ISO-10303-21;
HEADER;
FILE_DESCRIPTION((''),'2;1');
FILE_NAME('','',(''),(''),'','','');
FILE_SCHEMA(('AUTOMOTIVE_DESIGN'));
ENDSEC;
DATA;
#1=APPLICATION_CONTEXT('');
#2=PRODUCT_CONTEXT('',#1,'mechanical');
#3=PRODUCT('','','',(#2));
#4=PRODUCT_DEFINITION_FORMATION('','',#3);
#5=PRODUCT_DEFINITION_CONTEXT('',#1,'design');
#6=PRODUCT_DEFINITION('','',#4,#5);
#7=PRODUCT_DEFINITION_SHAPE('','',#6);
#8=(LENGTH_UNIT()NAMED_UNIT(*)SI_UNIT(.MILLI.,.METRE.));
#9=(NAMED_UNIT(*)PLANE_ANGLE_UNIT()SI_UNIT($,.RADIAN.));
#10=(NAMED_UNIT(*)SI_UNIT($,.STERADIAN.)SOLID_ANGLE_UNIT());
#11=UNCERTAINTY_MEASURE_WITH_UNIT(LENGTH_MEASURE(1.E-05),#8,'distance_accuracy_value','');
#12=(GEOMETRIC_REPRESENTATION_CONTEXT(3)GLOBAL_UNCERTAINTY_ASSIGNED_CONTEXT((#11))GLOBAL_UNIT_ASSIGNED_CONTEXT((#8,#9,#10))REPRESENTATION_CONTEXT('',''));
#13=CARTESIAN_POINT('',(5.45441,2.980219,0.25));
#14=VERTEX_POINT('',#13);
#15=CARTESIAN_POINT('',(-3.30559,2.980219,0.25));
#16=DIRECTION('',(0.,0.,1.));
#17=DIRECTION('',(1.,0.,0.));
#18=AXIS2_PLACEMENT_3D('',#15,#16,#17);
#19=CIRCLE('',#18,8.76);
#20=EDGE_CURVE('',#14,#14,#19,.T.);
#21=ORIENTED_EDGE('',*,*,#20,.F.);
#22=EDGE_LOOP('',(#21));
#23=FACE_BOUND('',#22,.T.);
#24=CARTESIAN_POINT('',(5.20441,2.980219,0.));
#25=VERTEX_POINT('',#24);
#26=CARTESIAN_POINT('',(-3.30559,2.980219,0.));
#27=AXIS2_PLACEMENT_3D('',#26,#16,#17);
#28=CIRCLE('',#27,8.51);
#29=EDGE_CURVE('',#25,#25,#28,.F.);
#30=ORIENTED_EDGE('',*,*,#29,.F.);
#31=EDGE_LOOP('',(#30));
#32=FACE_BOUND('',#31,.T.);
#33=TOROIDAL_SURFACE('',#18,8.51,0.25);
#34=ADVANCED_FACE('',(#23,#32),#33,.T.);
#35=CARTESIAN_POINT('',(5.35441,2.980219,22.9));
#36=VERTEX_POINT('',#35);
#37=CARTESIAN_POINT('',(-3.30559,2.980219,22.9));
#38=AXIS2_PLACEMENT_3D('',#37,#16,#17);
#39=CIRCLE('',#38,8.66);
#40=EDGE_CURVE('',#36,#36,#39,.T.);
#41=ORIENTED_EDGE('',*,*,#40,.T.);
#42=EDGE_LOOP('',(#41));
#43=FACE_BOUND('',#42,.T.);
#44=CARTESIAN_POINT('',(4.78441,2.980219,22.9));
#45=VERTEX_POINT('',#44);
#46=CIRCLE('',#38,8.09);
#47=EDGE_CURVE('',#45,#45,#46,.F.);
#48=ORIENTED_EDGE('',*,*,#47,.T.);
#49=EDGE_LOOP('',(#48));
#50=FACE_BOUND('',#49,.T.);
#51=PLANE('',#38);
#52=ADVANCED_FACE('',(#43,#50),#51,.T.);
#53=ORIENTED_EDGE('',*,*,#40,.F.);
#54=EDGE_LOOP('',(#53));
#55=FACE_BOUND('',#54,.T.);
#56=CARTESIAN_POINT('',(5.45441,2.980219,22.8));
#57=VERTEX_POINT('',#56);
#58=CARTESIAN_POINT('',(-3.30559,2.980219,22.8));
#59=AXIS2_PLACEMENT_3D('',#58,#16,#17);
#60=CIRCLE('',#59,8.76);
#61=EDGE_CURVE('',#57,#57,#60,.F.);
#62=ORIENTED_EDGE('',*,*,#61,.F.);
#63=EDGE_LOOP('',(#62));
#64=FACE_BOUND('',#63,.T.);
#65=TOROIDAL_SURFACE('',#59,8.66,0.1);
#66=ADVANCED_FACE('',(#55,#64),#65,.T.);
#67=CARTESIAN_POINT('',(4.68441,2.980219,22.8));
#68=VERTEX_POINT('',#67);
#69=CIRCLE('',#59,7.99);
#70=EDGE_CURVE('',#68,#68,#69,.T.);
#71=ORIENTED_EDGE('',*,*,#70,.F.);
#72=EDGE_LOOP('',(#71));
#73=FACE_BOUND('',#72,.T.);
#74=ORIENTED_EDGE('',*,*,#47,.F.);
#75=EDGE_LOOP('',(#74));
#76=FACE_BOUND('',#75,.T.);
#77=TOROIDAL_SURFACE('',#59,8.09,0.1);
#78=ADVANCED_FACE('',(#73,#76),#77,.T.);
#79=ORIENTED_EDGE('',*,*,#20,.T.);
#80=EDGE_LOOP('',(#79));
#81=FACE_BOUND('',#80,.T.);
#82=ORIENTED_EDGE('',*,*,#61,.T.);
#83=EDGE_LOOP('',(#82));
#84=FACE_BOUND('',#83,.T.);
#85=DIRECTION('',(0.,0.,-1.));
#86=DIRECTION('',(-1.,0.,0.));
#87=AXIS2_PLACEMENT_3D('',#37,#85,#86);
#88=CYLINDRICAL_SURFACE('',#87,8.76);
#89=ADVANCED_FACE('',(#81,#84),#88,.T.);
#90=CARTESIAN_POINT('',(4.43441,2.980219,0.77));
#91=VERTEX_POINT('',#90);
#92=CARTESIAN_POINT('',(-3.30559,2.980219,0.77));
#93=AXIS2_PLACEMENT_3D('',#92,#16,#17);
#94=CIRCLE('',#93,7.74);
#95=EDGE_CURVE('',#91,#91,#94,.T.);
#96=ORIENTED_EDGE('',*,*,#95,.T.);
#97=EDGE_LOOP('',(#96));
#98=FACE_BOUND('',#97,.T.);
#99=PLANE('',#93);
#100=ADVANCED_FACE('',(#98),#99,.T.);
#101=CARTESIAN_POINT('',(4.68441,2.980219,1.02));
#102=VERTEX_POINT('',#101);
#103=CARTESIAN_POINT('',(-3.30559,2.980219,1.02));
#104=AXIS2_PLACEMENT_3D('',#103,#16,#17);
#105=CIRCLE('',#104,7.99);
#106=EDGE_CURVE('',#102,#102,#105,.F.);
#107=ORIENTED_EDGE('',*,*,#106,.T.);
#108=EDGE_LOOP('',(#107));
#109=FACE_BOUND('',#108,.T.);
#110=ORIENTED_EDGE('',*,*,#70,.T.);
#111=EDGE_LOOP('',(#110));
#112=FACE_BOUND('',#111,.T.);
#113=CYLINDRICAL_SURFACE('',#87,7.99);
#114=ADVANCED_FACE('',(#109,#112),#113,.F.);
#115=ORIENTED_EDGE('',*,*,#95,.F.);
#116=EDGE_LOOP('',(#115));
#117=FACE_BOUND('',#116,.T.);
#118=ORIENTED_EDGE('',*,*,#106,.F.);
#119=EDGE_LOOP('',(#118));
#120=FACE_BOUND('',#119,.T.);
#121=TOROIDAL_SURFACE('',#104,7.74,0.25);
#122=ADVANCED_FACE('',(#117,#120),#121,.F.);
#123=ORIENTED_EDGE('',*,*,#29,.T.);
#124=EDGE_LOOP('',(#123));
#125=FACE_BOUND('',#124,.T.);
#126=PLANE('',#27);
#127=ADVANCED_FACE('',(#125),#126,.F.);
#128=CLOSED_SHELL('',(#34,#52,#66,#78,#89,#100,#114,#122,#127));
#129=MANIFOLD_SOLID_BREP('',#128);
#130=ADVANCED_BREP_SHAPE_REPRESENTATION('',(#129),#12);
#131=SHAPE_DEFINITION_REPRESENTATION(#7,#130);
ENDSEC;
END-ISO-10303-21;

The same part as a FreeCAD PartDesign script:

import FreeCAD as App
import Part
import Sketcher

V = App.Vector
Q = App.Units.Quantity


def edges_at(feature, points):
    """Names of the edges that pass closest to the given points."""
    edges = feature.Shape.Edges
    near = lambda p: min(range(len(edges)), key=lambda i: edges[i].distToShape(Part.Vertex(*p))[0])
    return sorted({f"Edge{near(p) + 1}" for p in points})


def faces_at(feature, points):
    """Names of the faces that lie closest to the given points."""
    faces = feature.Shape.Faces
    near = lambda p: min(range(len(faces)), key=lambda i: faces[i].distToShape(Part.Vertex(*p))[0])
    return sorted({f"Face{near(p) + 1}" for p in points})

doc = App.newDocument("Part")
body = doc.addObject("PartDesign::Body", "Body")

sketch1 = body.newObject("Sketcher::SketchObject", "Sketch")
sketch1.AttachmentSupport = (doc.getObject("XY_Plane"), [""])
sketch1.MapMode = "FlatFace"
sketch1.addGeometry(Part.Circle(V(-3, 3, 0), V(0, 0, 1), 9), False)
sketch1.addConstraint([
    Sketcher.Constraint("Diameter", 0, Q("17.52 mm")),
    Sketcher.Constraint("DistanceX", 0, 3, -1, 1, Q("3.30559 mm")),
    Sketcher.Constraint("DistanceY", -1, 1, 0, 3, Q("2.980219 mm")),
])
pad1 = body.newObject("PartDesign::Pad", "Pad")
pad1.Profile = sketch1
pad1.Length = 22.9
doc.recompute()

thickness = body.newObject("PartDesign::Thickness", "Thickness")
thickness.Base = (pad1, faces_at(pad1, [(-3.306, 2.98, 22.9)]))
thickness.Value = 0.77
thickness.Reversed = True
thickness.Join = "Intersection"
doc.recompute()

fillet = body.newObject("PartDesign::Fillet", "Fillet")
fillet.Base = (thickness, edges_at(thickness, [(-11.296, 2.98, 0.77)]))
fillet.Radius = 0.25
doc.recompute()

fillet2 = body.newObject("PartDesign::Fillet", "Fillet001")
fillet2.Base = (fillet, edges_at(fillet, [(-12.066, 2.98, 0)]))
fillet2.Radius = 0.25
doc.recompute()

fillet3 = body.newObject("PartDesign::Fillet", "Fillet002")
fillet3.Base = (fillet2, edges_at(fillet2, [(-12.066, 2.98, 22.9), (-11.296, 2.98, 22.9)]))
fillet3.Radius = 0.1

doc.recompute()
